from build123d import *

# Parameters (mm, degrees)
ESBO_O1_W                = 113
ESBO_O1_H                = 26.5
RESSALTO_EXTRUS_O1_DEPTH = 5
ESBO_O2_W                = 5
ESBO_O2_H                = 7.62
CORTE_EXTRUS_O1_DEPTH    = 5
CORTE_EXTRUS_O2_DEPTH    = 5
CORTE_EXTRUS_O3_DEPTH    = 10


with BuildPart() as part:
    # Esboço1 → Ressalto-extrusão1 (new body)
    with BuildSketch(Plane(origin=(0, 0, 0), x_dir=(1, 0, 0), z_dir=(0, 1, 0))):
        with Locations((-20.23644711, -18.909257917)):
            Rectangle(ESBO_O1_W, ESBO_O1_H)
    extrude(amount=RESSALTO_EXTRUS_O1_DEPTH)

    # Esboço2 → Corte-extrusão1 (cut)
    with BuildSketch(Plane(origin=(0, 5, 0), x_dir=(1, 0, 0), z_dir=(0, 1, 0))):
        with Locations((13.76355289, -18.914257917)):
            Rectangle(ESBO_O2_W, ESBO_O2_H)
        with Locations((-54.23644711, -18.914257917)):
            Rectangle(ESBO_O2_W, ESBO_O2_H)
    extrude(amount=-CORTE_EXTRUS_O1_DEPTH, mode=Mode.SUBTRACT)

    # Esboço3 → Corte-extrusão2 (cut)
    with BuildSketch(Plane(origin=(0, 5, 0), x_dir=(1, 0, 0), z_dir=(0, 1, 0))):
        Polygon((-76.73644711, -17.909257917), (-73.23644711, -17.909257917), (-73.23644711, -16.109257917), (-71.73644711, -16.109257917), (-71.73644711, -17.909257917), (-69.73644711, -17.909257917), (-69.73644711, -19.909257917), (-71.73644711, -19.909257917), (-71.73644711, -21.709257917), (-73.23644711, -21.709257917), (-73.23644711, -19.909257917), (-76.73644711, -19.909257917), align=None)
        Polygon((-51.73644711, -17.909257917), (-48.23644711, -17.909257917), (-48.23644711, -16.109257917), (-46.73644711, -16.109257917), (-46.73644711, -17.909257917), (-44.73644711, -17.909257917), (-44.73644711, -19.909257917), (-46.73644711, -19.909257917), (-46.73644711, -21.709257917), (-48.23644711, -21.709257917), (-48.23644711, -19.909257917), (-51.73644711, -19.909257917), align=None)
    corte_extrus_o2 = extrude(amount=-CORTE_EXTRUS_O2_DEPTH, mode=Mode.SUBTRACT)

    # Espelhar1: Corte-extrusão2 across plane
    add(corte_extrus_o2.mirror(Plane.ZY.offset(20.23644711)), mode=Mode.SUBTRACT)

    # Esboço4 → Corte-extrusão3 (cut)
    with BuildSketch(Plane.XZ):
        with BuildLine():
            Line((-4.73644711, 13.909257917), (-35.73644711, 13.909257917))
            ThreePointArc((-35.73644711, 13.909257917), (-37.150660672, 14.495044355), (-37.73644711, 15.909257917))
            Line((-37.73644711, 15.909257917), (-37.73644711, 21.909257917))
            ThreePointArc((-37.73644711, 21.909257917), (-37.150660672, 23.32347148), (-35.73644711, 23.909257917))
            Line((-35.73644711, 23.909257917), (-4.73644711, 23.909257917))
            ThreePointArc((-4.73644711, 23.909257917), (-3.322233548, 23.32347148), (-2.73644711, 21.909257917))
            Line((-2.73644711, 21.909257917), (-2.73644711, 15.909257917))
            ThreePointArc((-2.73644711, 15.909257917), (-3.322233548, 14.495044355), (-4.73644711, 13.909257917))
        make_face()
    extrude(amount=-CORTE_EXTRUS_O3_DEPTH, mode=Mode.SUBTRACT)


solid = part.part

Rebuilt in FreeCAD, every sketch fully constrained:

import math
import FreeCAD as App
import Part
import Sketcher
from FreeCAD import Vector
Q = App.Units.Quantity


def add_polygon(sketch, points):
    """Adds a closed chain of lines whose ends are joined by coincident constraints."""
    first, n = sketch.GeometryCount, len(points)
    for a, b in zip(points, points[1:] + points[:1]):
        sketch.addGeometry(Part.LineSegment(App.Vector(*a, 0), App.Vector(*b, 0)), False)
    for i in range(n):
        sketch.addConstraint(Sketcher.Constraint("Coincident", first + i, 2, first + (i + 1) % n, 1))

doc = App.newDocument("Part")
params = doc.addObject("Spreadsheet::Sheet", "Params")
for row, (alias, value) in enumerate([
    ("sketch1_width", "113 mm"),
    ("sketch1_height", "26.5 mm"),
    ("pad1_length", "5 mm"),
    ("sketch2_width", "5 mm"),
    ("sketch2_height", "7.62 mm"),
    ("pocket1_length", "5 mm"),
    ("sketch3_width", "2 mm"),
    ("sketch3_width2", "3.5 mm"),
    ("sketch3_width3", "1.5 mm"),
    ("sketch3_height", "1.8 mm"),
    ("pocket2_length", "5 mm"),
    ("sketch4_radius", "2 mm"),
    ("sketch4_width", "31 mm"),
    ("sketch4_height", "6 mm"),
    ("pocket3_length", "10 mm"),
], start=1):
    params.set(f"A{row}", alias)
    params.set(f"B{row}", "=" + value)
    params.setAlias(f"B{row}", alias)

body = doc.addObject("PartDesign::Body", "Body")

sketch1 = doc.addObject("Sketcher::SketchObject", "Sketch")
body.addObject(sketch1)
sketch1.AttachmentSupport = (doc.XZ_Plane, [""])
sketch1.MapMode = "FlatFace"
add_polygon(sketch1, [(-77, 6), (-77, 32), (36, 32), (36, 6)])
sketch1.addConstraint([
    Sketcher.Constraint("Vertical", 0),
    Sketcher.Constraint("Horizontal", 1),
    Sketcher.Constraint("Vertical", 2),
    Sketcher.Constraint("Horizontal", 3),
    Sketcher.Constraint("DistanceX", 1, 1, 1, 2, Q("113 mm")),
    Sketcher.Constraint("DistanceY", 0, 1, 0, 2, Q("26.5 mm")),
    Sketcher.Constraint("DistanceX", 0, 2, -1, 1, Q("76.736447 mm")),
    Sketcher.Constraint("DistanceY", -1, 1, 0, 2, Q("32.159258 mm")),
])
sketch1.setExpression("Constraints[8]", "Params.sketch1_width")
sketch1.setExpression("Constraints[9]", "Params.sketch1_height")
pad1 = doc.addObject("PartDesign::Pad", "Pad")
body.addObject(pad1)
pad1.Profile = sketch1
pad1.setExpression("Length", "Params.pad1_length")
pad1.Reversed = True

sketch2 = doc.addObject("Sketcher::SketchObject", "Sketch001")
body.addObject(sketch2)
sketch2.AttachmentSupport = (doc.XZ_Plane, [""])
sketch2.MapMode = "FlatFace"
sketch2.AttachmentOffset = App.Placement(Vector(0, 0, -5), App.Rotation())
add_polygon(sketch2, [(11, 15), (11, 23), (16, 23), (16, 15)])
add_polygon(sketch2, [(-57, 15), (-57, 23), (-52, 23), (-52, 15)])
sketch2.addConstraint([
    Sketcher.Constraint("Vertical", 0),
    Sketcher.Constraint("Horizontal", 1),
    Sketcher.Constraint("Vertical", 2),
    Sketcher.Constraint("Horizontal", 3),
    Sketcher.Constraint("Vertical", 4),
    Sketcher.Constraint("Horizontal", 5),
    Sketcher.Constraint("Vertical", 6),
    Sketcher.Constraint("Horizontal", 7),
    Sketcher.Constraint("Horizontal", 1, 2, 4, 2),
    Sketcher.Constraint("Horizontal", 3, 2, 6, 2),
    Sketcher.Constraint("Equal", 3, 5),
    Sketcher.Constraint("DistanceX", 1, 1, 1, 2, Q("5 mm")),
    Sketcher.Constraint("DistanceX", 4, 2, 0, 2, Q("68 mm")),
    Sketcher.Constraint("DistanceY", 0, 1, 0, 2, Q("7.62 mm")),
    Sketcher.Constraint("DistanceX", -1, 1, 0, 2, Q("11.263553 mm")),
    Sketcher.Constraint("DistanceY", -1, 1, 0, 2, Q("22.724258 mm")),
])
sketch2.setExpression("Constraints[19]", "Params.sketch2_width")
sketch2.setExpression("Constraints[21]", "Params.sketch2_height")
pocket1 = doc.addObject("PartDesign::Pocket", "Pocket")
body.addObject(pocket1)
pocket1.Profile = sketch2
pocket1.setExpression("Length", "Params.pocket1_length")
pocket1.Reversed = True

sketch3 = doc.addObject("Sketcher::SketchObject", "Sketch002")
body.addObject(sketch3)
sketch3.AttachmentSupport = (doc.XZ_Plane, [""])
sketch3.MapMode = "FlatFace"
sketch3.AttachmentOffset = App.Placement(Vector(0, 0, -5), App.Rotation())
add_polygon(sketch3, [(-73.2, 17.9), (-76.7, 17.9), (-76.7, 19.9), (-73.2, 19.9), (-73.2, 21.7), (-71.7, 21.7), (-71.7, 19.9), (-69.7, 19.9), (-69.7, 17.9), (-71.7, 17.9), (-71.7, 16.1), (-73.2, 16.1)])
add_polygon(sketch3, [(-48.2, 17.9), (-51.7, 17.9), (-51.7, 19.9), (-48.2, 19.9), (-48.2, 21.7), (-46.7, 21.7), (-46.7, 19.9), (-44.7, 19.9), (-44.7, 17.9), (-46.7, 17.9), (-46.7, 16.1), (-48.2, 16.1)])
sketch3.addConstraint([
    Sketcher.Constraint("Horizontal", 0),
    Sketcher.Constraint("Vertical", 1),
    Sketcher.Constraint("Horizontal", 2),
    Sketcher.Constraint("Vertical", 3),
    Sketcher.Constraint("Horizontal", 4),
    Sketcher.Constraint("Vertical", 5),
    Sketcher.Constraint("Horizontal", 6),
    Sketcher.Constraint("Vertical", 7),
    Sketcher.Constraint("Horizontal", 8),
    Sketcher.Constraint("Vertical", 9),
    Sketcher.Constraint("Horizontal", 10),
    Sketcher.Constraint("Vertical", 11),
    Sketcher.Constraint("Horizontal", 12),
    Sketcher.Constraint("Vertical", 13),
    Sketcher.Constraint("Horizontal", 14),
    Sketcher.Constraint("Vertical", 15),
    Sketcher.Constraint("Horizontal", 16),
    Sketcher.Constraint("Vertical", 17),
    Sketcher.Constraint("Horizontal", 18),
    Sketcher.Constraint("Vertical", 19),
    Sketcher.Constraint("Horizontal", 20),
    Sketcher.Constraint("Vertical", 21),
    Sketcher.Constraint("Horizontal", 22),
    Sketcher.Constraint("Vertical", 23),
    Sketcher.Constraint("Horizontal", 2, 2, 5, 2),
    Sketcher.Constraint("Horizontal", 0, 2, 7, 2),
    Sketcher.Constraint("Horizontal", 11, 2, 12, 2),
    Sketcher.Constraint("Horizontal", 6, 2, 13, 2),
    Sketcher.Constraint("Horizontal", 4, 2, 15, 2),
    Sketcher.Constraint("Horizontal", 14, 2, 17, 2),
    Sketcher.Constraint("Horizontal", 12, 2, 19, 2),
    Sketcher.Constraint("Horizontal", 10, 2, 21, 2),
    Sketcher.Constraint("Vertical", 5, 2, 8, 2),
    Sketcher.Constraint("Vertical", 3, 2, 10, 2),
    Sketcher.Constraint("Vertical", 17, 2, 20, 2),
    Sketcher.Constraint("Vertical", 15, 2, 22, 2),
    Sketcher.Constraint("Equal", 2, 12),
    Sketcher.Constraint("Equal", 10, 16),
    Sketcher.Constraint("Equal", 8, 18),
    Sketcher.Constraint("Equal", 20, 1),
    Sketcher.Constraint("Equal", 5, 9),
    Sketcher.Constraint("DistanceX", 6, 1, 6, 2, Q("2 mm")),
    Sketcher.Constraint("DistanceX", 0, 2, 0, 1, Q("3.5 mm")),
    Sketcher.Constraint("DistanceX", 4, 1, 4, 2, Q("1.5 mm")),
    Sketcher.Constraint("DistanceY", 3, 1, 3, 2, Q("1.8 mm")),
    Sketcher.Constraint("DistanceX", 7, 2, 12, 2, Q("18 mm")),
    Sketcher.Constraint("DistanceX", 0, 2, -1, 1, Q("76.736447 mm")),
    Sketcher.Constraint("DistanceY", -1, 1, 0, 2, Q("17.909258 mm")),
])
sketch3.setExpression("Constraints[65]", "Params.sketch3_width")
sketch3.setExpression("Constraints[66]", "Params.sketch3_width2")
sketch3.setExpression("Constraints[67]", "Params.sketch3_width3")
sketch3.setExpression("Constraints[68]", "Params.sketch3_height")
pocket2 = doc.addObject("PartDesign::Pocket", "Pocket001")
body.addObject(pocket2)
pocket2.Profile = sketch3
pocket2.setExpression("Length", "Params.pocket2_length")
pocket2.Reversed = True
doc.recompute()

datumplane = doc.addObject("PartDesign::Plane", "DatumPlane")
body.addObject(datumplane)
datumplane.AttachmentSupport = (doc.YZ_Plane, [""])
datumplane.MapMode = "FlatFace"
datumplane.AttachmentOffset = App.Placement(Vector(0, 0, -20.236447), App.Rotation())
mirrored = doc.addObject("PartDesign::Mirrored", "Mirrored")
body.addObject(mirrored)
mirrored.Originals = [pocket2]
mirrored.MirrorPlane = (datumplane, [""])
body.Tip = mirrored

sketch4 = doc.addObject("Sketcher::SketchObject", "Sketch003")
body.addObject(sketch4)
sketch4.AttachmentSupport = (doc.XZ_Plane, [""])
sketch4.MapMode = "FlatFace"
sketch4.addGeometry([
    Part.LineSegment(Vector(-35.7, 13.9, 0), Vector(-4.7, 13.9, 0)),
    Part.ArcOfCircle(Part.Circle(Vector(-4.7, 15.9, 0), Vector(0, 0, 1), 2), math.radians(-90), math.radians(0)),
    Part.LineSegment(Vector(-2.7, 15.9, 0), Vector(-2.7, 21.9, 0)),
    Part.ArcOfCircle(Part.Circle(Vector(-4.7, 21.9, 0), Vector(0, 0, 1), 2), math.radians(0), math.radians(90)),
    Part.LineSegment(Vector(-4.7, 23.9, 0), Vector(-35.7, 23.9, 0)),
    Part.ArcOfCircle(Part.Circle(Vector(-35.7, 21.9, 0), Vector(0, 0, 1), 2), math.radians(90), math.radians(180)),
    Part.LineSegment(Vector(-37.7, 21.9, 0), Vector(-37.7, 15.9, 0)),
    Part.ArcOfCircle(Part.Circle(Vector(-35.7, 15.9, 0), Vector(0, 0, 1), 2), math.radians(-180), math.radians(-90)),
], False)
sketch4.addConstraint([
    Sketcher.Constraint("Tangent", 0, 2, 1, 1),
    Sketcher.Constraint("Tangent", 1, 2, 2, 1),
    Sketcher.Constraint("Tangent", 2, 2, 3, 1),
    Sketcher.Constraint("Tangent", 3, 2, 4, 1),
    Sketcher.Constraint("Tangent", 4, 2, 5, 1),
    Sketcher.Constraint("Tangent", 5, 2, 6, 1),
    Sketcher.Constraint("Tangent", 6, 2, 7, 1),
    Sketcher.Constraint("Tangent", 7, 2, 0, 1),
    Sketcher.Constraint("Horizontal", 0),
    Sketcher.Constraint("Vertical", 2),
    Sketcher.Constraint("Horizontal", 4),
    Sketcher.Constraint("Vertical", 6),
    Sketcher.Constraint("Equal", 1, 3),
    Sketcher.Constraint("Equal", 3, 5),
    Sketcher.Constraint("Equal", 5, 7),
    Sketcher.Constraint("Radius", 1, Q("2 mm")),
    Sketcher.Constraint("DistanceX", 0, 1, 0, 2, Q("31 mm")),
    Sketcher.Constraint("DistanceY", 2, 1, 2, 2, Q("6 mm")),
    Sketcher.Constraint("DistanceX", 1, 3, -1, 1, Q("4.736447 mm")),
    Sketcher.Constraint("DistanceY", -1, 1, 1, 3, Q("15.909258 mm")),
])
sketch4.setExpression("Constraints[15]", "Params.sketch4_radius")
sketch4.setExpression("Constraints[16]", "Params.sketch4_width")
sketch4.setExpression("Constraints[17]", "Params.sketch4_height")
pocket3 = doc.addObject("PartDesign::Pocket", "Pocket002")
body.addObject(pocket3)
pocket3.Profile = sketch4
pocket3.setExpression("Length", "Params.pocket3_length")

doc.recompute()
